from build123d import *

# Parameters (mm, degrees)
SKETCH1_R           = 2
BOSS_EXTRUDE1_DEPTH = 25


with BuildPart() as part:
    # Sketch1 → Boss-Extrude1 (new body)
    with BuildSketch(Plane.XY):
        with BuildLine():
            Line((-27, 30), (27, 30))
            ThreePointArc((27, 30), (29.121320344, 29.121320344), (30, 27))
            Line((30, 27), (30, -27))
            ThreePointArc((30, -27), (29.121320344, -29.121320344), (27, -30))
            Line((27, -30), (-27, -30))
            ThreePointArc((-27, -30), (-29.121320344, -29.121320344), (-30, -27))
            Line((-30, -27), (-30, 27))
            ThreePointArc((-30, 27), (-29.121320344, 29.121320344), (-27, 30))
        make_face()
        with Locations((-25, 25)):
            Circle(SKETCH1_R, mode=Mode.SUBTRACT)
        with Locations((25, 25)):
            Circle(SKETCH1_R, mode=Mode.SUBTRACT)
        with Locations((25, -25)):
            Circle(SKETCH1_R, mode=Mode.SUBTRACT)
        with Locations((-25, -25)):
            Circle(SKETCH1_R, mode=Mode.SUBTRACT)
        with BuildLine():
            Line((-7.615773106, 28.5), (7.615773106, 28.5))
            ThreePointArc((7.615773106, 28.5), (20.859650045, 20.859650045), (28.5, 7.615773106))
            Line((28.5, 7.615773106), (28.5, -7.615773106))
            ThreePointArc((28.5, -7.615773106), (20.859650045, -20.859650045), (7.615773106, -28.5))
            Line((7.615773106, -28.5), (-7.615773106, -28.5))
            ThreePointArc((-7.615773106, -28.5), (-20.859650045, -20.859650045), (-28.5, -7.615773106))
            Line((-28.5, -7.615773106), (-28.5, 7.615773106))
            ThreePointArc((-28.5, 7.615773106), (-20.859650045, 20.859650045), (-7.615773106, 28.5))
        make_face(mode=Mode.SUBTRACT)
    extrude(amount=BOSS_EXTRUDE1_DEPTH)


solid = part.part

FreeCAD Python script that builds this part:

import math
import FreeCAD as App
import Part
import Sketcher

doc = App.newDocument("Part")
body = doc.addObject("PartDesign::Body", "Body")

# Sketch on XY plane
sketch1 = body.newObject("Sketcher::SketchObject", "Sketch")
sketch1.AttachmentSupport = (doc.getObject("XY_Plane"), [""])
sketch1.MapMode = "FlatFace"
sketch1.addGeometry([
    Part.LineSegment(App.Vector(27, 30, 0), App.Vector(-27, 30, 0)),  # 0
    Part.ArcOfCircle(Part.Circle(App.Vector(-27, 27, 0), App.Vector(0, 0, 1), 3), math.radians(90), math.radians(180)),  # 1
    Part.LineSegment(App.Vector(-30, 27, 0), App.Vector(-30, -27, 0)),  # 2
    Part.ArcOfCircle(Part.Circle(App.Vector(-27, -27, 0), App.Vector(0, 0, 1), 3), math.radians(180), math.radians(270)),  # 3
    Part.LineSegment(App.Vector(-27, -30, 0), App.Vector(27, -30, 0)),  # 4
    Part.ArcOfCircle(Part.Circle(App.Vector(27, -27, 0), App.Vector(0, 0, 1), 3), math.radians(-90), math.radians(0)),  # 5
    Part.LineSegment(App.Vector(30, -27, 0), App.Vector(30, 27, 0)),  # 6
    Part.ArcOfCircle(Part.Circle(App.Vector(27, 27, 0), App.Vector(0, 0, 1), 3), math.radians(0), math.radians(90)),  # 7
    Part.Circle(App.Vector(25, -25, 0), App.Vector(0, 0, 1), 2),  # 8
    Part.Circle(App.Vector(-25, -25, 0), App.Vector(0, 0, 1), 2),  # 9
    Part.Circle(App.Vector(25, 25, 0), App.Vector(0, 0, 1), 2),  # 10
    Part.LineSegment(App.Vector(-7.6, 28.5, 0), App.Vector(7.6, 28.5, 0)),  # 11
    Part.ArcOfCircle(Part.Circle(App.Vector(0, 0, 0), App.Vector(0, 0, 1), 29.5), math.radians(15), math.radians(75)),  # 12
    Part.LineSegment(App.Vector(28.5, 7.6, 0), App.Vector(28.5, -7.6, 0)),  # 13
    Part.ArcOfCircle(Part.Circle(App.Vector(0, 0, 0), App.Vector(0, 0, 1), 29.5), math.radians(-75), math.radians(-15)),  # 14
    Part.LineSegment(App.Vector(7.6, -28.5, 0), App.Vector(-7.6, -28.5, 0)),  # 15
    Part.ArcOfCircle(Part.Circle(App.Vector(0, 0, 0), App.Vector(0, 0, 1), 29.5), math.radians(-165), math.radians(-105)),  # 16
    Part.LineSegment(App.Vector(-28.5, -7.6, 0), App.Vector(-28.5, 7.6, 0)),  # 17
    Part.ArcOfCircle(Part.Circle(App.Vector(0, 0, 0), App.Vector(0, 0, 1), 29.5), math.radians(105), math.radians(165)),  # 18
    Part.Circle(App.Vector(-25, 25, 0), App.Vector(0, 0, 1), 2),  # 19
], False)
sketch1.addConstraint([
    Sketcher.Constraint("Tangent", 0, 2, 1, 1),
    Sketcher.Constraint("Tangent", 1, 2, 2, 1),
    Sketcher.Constraint("Tangent", 2, 2, 3, 1),
    Sketcher.Constraint("Tangent", 3, 2, 4, 1),
    Sketcher.Constraint("Tangent", 4, 2, 5, 1),
    Sketcher.Constraint("Tangent", 5, 2, 6, 1),
    Sketcher.Constraint("Tangent", 6, 2, 7, 1),
    Sketcher.Constraint("Tangent", 7, 2, 0, 1),
    Sketcher.Constraint("Coincident", 11, 2, 12, 2),
    Sketcher.Constraint("Coincident", 12, 1, 13, 1),
    Sketcher.Constraint("Coincident", 13, 2, 14, 2),
    Sketcher.Constraint("Coincident", 14, 1, 15, 1),
    Sketcher.Constraint("Coincident", 15, 2, 16, 2),
    Sketcher.Constraint("Coincident", 16, 1, 17, 1),
    Sketcher.Constraint("Coincident", 17, 2, 18, 2),
    Sketcher.Constraint("Coincident", 18, 1, 11, 1),
    Sketcher.Constraint("Horizontal", 0),
    Sketcher.Constraint("Vertical", 2),
    Sketcher.Constraint("Horizontal", 4),
    Sketcher.Constraint("Vertical", 6),
    Sketcher.Constraint("Horizontal", 11),
    Sketcher.Constraint("Vertical", 13),
    Sketcher.Constraint("Horizontal", 15),
    Sketcher.Constraint("Vertical", 17),
    Sketcher.Constraint("Coincident", 12, 3, -1, 1),
    Sketcher.Constraint("Coincident", 14, 3, -1, 1),
    Sketcher.Constraint("Coincident", 16, 3, -1, 1),
    Sketcher.Constraint("Coincident", 18, 3, -1, 1),
    Sketcher.Constraint("Equal", 1, 3),
    Sketcher.Constraint("Equal", 3, 5),
    Sketcher.Constraint("Equal", 5, 7),
    Sketcher.Constraint("Equal", 8, 9),
    Sketcher.Constraint("Equal", 9, 10),
    Sketcher.Constraint("Equal", 12, 14),
    Sketcher.Constraint("Equal", 14, 16),
    Sketcher.Constraint("Equal", 16, 18),
    Sketcher.Constraint("Equal", 10, 19),
    Sketcher.Constraint("Symmetric", 1, 3, 5, 3, -1, 1),
    Sketcher.Constraint("Symmetric", 9, 3, 10, 3, -1, 1),
    Sketcher.Constraint("Symmetric", 8, 3, 19, 3, -1, 1),
    Sketcher.Constraint("Symmetric", 8, 3, 9, 3, -2),
    Sketcher.Constraint("Horizontal", 13, 2, 16, 1),
    Sketcher.Constraint("Vertical", 11, 2, 14, 1),
    Sketcher.Constraint("Equal", 4, 2),
    Sketcher.Constraint("Equal", 15, 13),
    Sketcher.Constraint("Diameter", 8, 4.0),
    Sketcher.Constraint("Radius", 1, 3.0),
    Sketcher.Constraint("Radius", 12, 29.5),
    Sketcher.Constraint("DistanceX", 0, 2, 0, 1, 54.0),
    Sketcher.Constraint("DistanceX", -1, 1, 8, 3, 25.0),
    Sketcher.Constraint("DistanceY", 8, 3, -1, 1, 25.0),
    Sketcher.Constraint("DistanceY", -1, 1, 11, 2, 28.5),
])
pad1 = body.newObject("PartDesign::Pad", "Pad")
pad1.Profile = sketch1
pad1.Length = 25

doc.recompute()
